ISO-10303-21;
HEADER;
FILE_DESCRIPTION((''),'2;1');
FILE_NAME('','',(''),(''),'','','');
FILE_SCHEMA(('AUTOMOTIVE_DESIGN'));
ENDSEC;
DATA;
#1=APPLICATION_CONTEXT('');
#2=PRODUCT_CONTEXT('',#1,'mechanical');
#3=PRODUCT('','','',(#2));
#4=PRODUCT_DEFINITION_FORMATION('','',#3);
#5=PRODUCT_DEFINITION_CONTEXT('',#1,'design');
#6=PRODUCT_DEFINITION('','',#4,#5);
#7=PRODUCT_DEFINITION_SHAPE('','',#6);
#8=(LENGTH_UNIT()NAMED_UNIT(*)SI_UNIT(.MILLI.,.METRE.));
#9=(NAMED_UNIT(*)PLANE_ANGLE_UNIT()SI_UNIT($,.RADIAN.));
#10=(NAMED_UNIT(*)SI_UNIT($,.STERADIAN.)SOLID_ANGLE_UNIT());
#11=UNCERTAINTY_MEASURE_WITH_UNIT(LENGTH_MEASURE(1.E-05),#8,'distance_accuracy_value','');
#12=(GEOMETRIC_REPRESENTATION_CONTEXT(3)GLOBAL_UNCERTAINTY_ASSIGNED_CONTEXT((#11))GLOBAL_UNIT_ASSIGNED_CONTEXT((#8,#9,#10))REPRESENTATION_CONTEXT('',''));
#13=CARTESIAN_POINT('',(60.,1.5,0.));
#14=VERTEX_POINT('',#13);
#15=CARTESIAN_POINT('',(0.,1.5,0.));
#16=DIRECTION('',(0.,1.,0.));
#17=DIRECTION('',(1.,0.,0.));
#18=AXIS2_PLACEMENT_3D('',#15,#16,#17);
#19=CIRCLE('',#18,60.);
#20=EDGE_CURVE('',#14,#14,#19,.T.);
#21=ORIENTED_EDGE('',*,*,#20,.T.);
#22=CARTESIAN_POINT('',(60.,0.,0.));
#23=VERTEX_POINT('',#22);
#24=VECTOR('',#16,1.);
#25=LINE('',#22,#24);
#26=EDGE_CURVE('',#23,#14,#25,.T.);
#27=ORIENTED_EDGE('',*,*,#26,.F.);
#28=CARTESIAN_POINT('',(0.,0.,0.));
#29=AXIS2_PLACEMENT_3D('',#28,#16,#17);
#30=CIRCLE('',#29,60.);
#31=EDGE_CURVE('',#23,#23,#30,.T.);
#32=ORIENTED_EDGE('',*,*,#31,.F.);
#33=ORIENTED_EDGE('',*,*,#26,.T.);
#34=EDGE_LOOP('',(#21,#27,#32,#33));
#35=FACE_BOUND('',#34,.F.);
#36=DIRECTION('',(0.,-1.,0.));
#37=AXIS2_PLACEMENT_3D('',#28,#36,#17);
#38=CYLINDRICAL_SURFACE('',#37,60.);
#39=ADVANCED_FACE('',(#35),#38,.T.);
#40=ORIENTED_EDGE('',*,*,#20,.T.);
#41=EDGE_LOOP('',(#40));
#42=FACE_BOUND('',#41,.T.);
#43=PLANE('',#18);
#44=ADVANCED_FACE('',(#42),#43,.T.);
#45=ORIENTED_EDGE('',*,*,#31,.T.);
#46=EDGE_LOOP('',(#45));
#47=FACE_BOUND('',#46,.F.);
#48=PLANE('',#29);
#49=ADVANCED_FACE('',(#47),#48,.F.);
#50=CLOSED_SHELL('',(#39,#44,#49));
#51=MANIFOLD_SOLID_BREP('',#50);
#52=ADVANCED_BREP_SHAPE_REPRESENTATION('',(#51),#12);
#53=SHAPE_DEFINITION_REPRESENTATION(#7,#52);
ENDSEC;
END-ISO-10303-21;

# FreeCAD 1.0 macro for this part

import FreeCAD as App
import Part
import Sketcher
from FreeCAD import Vector
Q = App.Units.Quantity

doc = App.newDocument("Part")
body = doc.addObject("PartDesign::Body", "Body")

# Sketch on XZ plane
sketch1 = doc.addObject("Sketcher::SketchObject", "Sketch")
body.addObject(sketch1)
sketch1.AttachmentSupport = (doc.XZ_Plane, [""])
sketch1.MapMode = "FlatFace"
sketch1.addGeometry(Part.Circle(Vector(0, 0, 0), Vector(0, 0, 1), 60), False)
sketch1.addConstraint([
    Sketcher.Constraint("Coincident", 0, 3, -1, 1),
    Sketcher.Constraint("Diameter", 0, Q("120 mm")),
])
pad1 = doc.addObject("PartDesign::Pad", "Pad")
body.addObject(pad1)
pad1.Profile = sketch1
pad1.Length = 1.5
pad1.Reversed = True

doc.recompute()
